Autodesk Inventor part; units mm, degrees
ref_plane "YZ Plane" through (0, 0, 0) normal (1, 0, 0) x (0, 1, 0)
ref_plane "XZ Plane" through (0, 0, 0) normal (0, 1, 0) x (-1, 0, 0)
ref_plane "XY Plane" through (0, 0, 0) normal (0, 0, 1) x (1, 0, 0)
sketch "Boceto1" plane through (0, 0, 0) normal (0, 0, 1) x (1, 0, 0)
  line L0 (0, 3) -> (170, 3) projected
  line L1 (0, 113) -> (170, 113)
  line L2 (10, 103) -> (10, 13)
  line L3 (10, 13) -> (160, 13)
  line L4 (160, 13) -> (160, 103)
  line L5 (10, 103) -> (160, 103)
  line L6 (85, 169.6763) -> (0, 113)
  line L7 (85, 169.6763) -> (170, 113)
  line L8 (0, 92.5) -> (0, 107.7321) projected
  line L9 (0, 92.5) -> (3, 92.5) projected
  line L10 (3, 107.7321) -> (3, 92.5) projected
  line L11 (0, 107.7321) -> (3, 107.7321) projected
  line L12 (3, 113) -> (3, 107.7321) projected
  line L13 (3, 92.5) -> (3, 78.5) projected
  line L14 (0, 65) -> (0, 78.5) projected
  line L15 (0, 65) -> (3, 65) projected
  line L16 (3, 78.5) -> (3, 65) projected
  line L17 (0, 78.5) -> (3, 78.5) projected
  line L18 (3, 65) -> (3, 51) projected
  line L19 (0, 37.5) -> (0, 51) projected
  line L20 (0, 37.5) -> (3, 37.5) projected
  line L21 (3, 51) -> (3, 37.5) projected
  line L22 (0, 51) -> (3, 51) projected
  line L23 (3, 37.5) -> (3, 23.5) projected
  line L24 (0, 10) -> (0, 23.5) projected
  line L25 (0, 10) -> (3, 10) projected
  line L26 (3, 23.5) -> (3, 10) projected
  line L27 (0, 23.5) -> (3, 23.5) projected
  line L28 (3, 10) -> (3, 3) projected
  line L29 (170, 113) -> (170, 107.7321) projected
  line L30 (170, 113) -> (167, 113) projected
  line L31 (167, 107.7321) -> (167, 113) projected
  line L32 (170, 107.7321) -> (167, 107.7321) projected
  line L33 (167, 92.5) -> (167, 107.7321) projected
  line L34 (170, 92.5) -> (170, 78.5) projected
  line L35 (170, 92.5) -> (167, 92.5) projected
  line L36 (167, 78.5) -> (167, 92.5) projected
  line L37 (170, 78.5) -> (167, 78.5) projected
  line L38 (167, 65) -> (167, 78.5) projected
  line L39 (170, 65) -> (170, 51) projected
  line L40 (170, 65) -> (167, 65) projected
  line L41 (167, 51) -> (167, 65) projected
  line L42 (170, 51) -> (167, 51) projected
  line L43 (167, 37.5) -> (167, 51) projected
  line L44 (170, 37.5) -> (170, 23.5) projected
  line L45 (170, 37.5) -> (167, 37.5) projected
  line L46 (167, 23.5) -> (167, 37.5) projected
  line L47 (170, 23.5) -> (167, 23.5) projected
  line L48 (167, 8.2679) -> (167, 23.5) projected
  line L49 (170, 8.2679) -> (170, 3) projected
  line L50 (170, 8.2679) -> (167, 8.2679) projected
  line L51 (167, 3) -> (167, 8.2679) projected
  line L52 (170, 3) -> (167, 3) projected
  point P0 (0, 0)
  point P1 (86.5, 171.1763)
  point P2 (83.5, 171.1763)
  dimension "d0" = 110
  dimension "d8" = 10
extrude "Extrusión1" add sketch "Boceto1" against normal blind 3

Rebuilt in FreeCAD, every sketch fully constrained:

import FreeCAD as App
import Part
import Sketcher

doc = App.newDocument("Part")
body = doc.addObject("PartDesign::Body", "Body")

sketch1 = body.newObject("Sketcher::SketchObject", "Sketch")
sketch1.AttachmentSupport = (doc.getObject("XY_Plane"), [""])
sketch1.MapMode = "FlatFace"
sketch1.addGeometry([
    Part.LineSegment(App.Vector(3, 10, 0), App.Vector(3, 3, 0)),
    Part.LineSegment(App.Vector(3, 3, 0), App.Vector(170, 3, 0)),
    Part.LineSegment(App.Vector(170, 3, 0), App.Vector(170, 8.2679, 0)),
    Part.LineSegment(App.Vector(170, 8.2679, 0), App.Vector(167, 8.2679, 0)),
    Part.LineSegment(App.Vector(167, 8.2679, 0), App.Vector(167, 23.5, 0)),
    Part.LineSegment(App.Vector(167, 23.5, 0), App.Vector(170, 23.5, 0)),
    Part.LineSegment(App.Vector(170, 23.5, 0), App.Vector(170, 37.5, 0)),
    Part.LineSegment(App.Vector(170, 37.5, 0), App.Vector(167, 37.5, 0)),
    Part.LineSegment(App.Vector(167, 37.5, 0), App.Vector(167, 51, 0)),
    Part.LineSegment(App.Vector(167, 51, 0), App.Vector(170, 51, 0)),
    Part.LineSegment(App.Vector(170, 51, 0), App.Vector(170, 65, 0)),
    Part.LineSegment(App.Vector(170, 65, 0), App.Vector(167, 65, 0)),
    Part.LineSegment(App.Vector(167, 65, 0), App.Vector(167, 78.5, 0)),
    Part.LineSegment(App.Vector(167, 78.5, 0), App.Vector(170, 78.5, 0)),
    Part.LineSegment(App.Vector(170, 78.5, 0), App.Vector(170, 92.5, 0)),
    Part.LineSegment(App.Vector(170, 92.5, 0), App.Vector(167, 92.5, 0)),
    Part.LineSegment(App.Vector(167, 92.5, 0), App.Vector(167, 107.7321, 0)),
    Part.LineSegment(App.Vector(167, 107.7321, 0), App.Vector(170, 107.7321, 0)),
    Part.LineSegment(App.Vector(170, 107.7321, 0), App.Vector(170, 113, 0)),
    Part.LineSegment(App.Vector(170, 113, 0), App.Vector(85, 169.6763, 0)),
    Part.LineSegment(App.Vector(85, 169.6763, 0), App.Vector(0, 113, 0)),
    Part.LineSegment(App.Vector(0, 113, 0), App.Vector(3, 113, 0)),
    Part.LineSegment(App.Vector(3, 113, 0), App.Vector(3, 107.7321, 0)),
    Part.LineSegment(App.Vector(3, 107.7321, 0), App.Vector(0, 107.7321, 0)),
    Part.LineSegment(App.Vector(0, 107.7321, 0), App.Vector(0, 92.5, 0)),
    Part.LineSegment(App.Vector(0, 92.5, 0), App.Vector(3, 92.5, 0)),
    Part.LineSegment(App.Vector(3, 92.5, 0), App.Vector(3, 78.5, 0)),
    Part.LineSegment(App.Vector(3, 78.5, 0), App.Vector(0, 78.5, 0)),
    Part.LineSegment(App.Vector(0, 78.5, 0), App.Vector(0, 65, 0)),
    Part.LineSegment(App.Vector(0, 65, 0), App.Vector(3, 65, 0)),
    Part.LineSegment(App.Vector(3, 65, 0), App.Vector(3, 51, 0)),
    Part.LineSegment(App.Vector(3, 51, 0), App.Vector(0, 51, 0)),
    Part.LineSegment(App.Vector(0, 51, 0), App.Vector(0, 37.5, 0)),
    Part.LineSegment(App.Vector(0, 37.5, 0), App.Vector(3, 37.5, 0)),
    Part.LineSegment(App.Vector(3, 37.5, 0), App.Vector(3, 23.5, 0)),
    Part.LineSegment(App.Vector(3, 23.5, 0), App.Vector(0, 23.5, 0)),
    Part.LineSegment(App.Vector(0, 23.5, 0), App.Vector(0, 10, 0)),
    Part.LineSegment(App.Vector(0, 10, 0), App.Vector(3, 10, 0)),
    Part.LineSegment(App.Vector(10, 13, 0), App.Vector(10, 103, 0)),
    Part.LineSegment(App.Vector(10, 103, 0), App.Vector(160, 103, 0)),
    Part.LineSegment(App.Vector(160, 103, 0), App.Vector(160, 13, 0)),
    Part.LineSegment(App.Vector(160, 13, 0), App.Vector(10, 13, 0)),
], False)
sketch1.addConstraint([
    Sketcher.Constraint("Coincident", 0, 2, 1, 1),
    Sketcher.Constraint("Coincident", 1, 2, 2, 1),
    Sketcher.Constraint("Coincident", 2, 2, 3, 1),
    Sketcher.Constraint("Coincident", 3, 2, 4, 1),
    Sketcher.Constraint("Coincident", 4, 2, 5, 1),
    Sketcher.Constraint("Coincident", 5, 2, 6, 1),
    Sketcher.Constraint("Coincident", 6, 2, 7, 1),
    Sketcher.Constraint("Coincident", 7, 2, 8, 1),
    Sketcher.Constraint("Coincident", 8, 2, 9, 1),
    Sketcher.Constraint("Coincident", 9, 2, 10, 1),
    Sketcher.Constraint("Coincident", 10, 2, 11, 1),
    Sketcher.Constraint("Coincident", 11, 2, 12, 1),
    Sketcher.Constraint("Coincident", 12, 2, 13, 1),
    Sketcher.Constraint("Coincident", 13, 2, 14, 1),
    Sketcher.Constraint("Coincident", 14, 2, 15, 1),
    Sketcher.Constraint("Coincident", 15, 2, 16, 1),
    Sketcher.Constraint("Coincident", 16, 2, 17, 1),
    Sketcher.Constraint("Coincident", 17, 2, 18, 1),
    Sketcher.Constraint("Coincident", 18, 2, 19, 1),
    Sketcher.Constraint("Coincident", 19, 2, 20, 1),
    Sketcher.Constraint("Coincident", 20, 2, 21, 1),
    Sketcher.Constraint("Coincident", 21, 2, 22, 1),
    Sketcher.Constraint("Coincident", 22, 2, 23, 1),
    Sketcher.Constraint("Coincident", 23, 2, 24, 1),
    Sketcher.Constraint("Coincident", 24, 2, 25, 1),
    Sketcher.Constraint("Coincident", 25, 2, 26, 1),
    Sketcher.Constraint("Coincident", 26, 2, 27, 1),
    Sketcher.Constraint("Coincident", 27, 2, 28, 1),
    Sketcher.Constraint("Coincident", 28, 2, 29, 1),
    Sketcher.Constraint("Coincident", 29, 2, 30, 1),
    Sketcher.Constraint("Coincident", 30, 2, 31, 1),
    Sketcher.Constraint("Coincident", 31, 2, 32, 1),
    Sketcher.Constraint("Coincident", 32, 2, 33, 1),
    Sketcher.Constraint("Coincident", 33, 2, 34, 1),
    Sketcher.Constraint("Coincident", 34, 2, 35, 1),
    Sketcher.Constraint("Coincident", 35, 2, 36, 1),
    Sketcher.Constraint("Coincident", 36, 2, 37, 1),
    Sketcher.Constraint("Coincident", 37, 2, 0, 1),
    Sketcher.Constraint("Coincident", 38, 2, 39, 1),
    Sketcher.Constraint("Coincident", 39, 2, 40, 1),
    Sketcher.Constraint("Coincident", 40, 2, 41, 1),
    Sketcher.Constraint("Coincident", 41, 2, 38, 1),
    Sketcher.Constraint("Vertical", 0),
    Sketcher.Constraint("Horizontal", 1),
    Sketcher.Constraint("Vertical", 2),
    Sketcher.Constraint("Horizontal", 3),
    Sketcher.Constraint("Vertical", 4),
    Sketcher.Constraint("Horizontal", 5),
    Sketcher.Constraint("Vertical", 6),
    Sketcher.Constraint("Horizontal", 7),
    Sketcher.Constraint("Vertical", 8),
    Sketcher.Constraint("Horizontal", 9),
    Sketcher.Constraint("Vertical", 10),
    Sketcher.Constraint("Horizontal", 11),
    Sketcher.Constraint("Vertical", 12),
    Sketcher.Constraint("Horizontal", 13),
    Sketcher.Constraint("Vertical", 14),
    Sketcher.Constraint("Horizontal", 15),
    Sketcher.Constraint("Vertical", 16),
    Sketcher.Constraint("Horizontal", 17),
    Sketcher.Constraint("Vertical", 18),
    Sketcher.Constraint("Horizontal", 21),
    Sketcher.Constraint("Vertical", 22),
    Sketcher.Constraint("Horizontal", 23),
    Sketcher.Constraint("Vertical", 24),
    Sketcher.Constraint("Horizontal", 25),
    Sketcher.Constraint("Vertical", 26),
    Sketcher.Constraint("Horizontal", 27),
    Sketcher.Constraint("Vertical", 28),
    Sketcher.Constraint("Horizontal", 29),
    Sketcher.Constraint("Vertical", 30),
    Sketcher.Constraint("Horizontal", 31),
    Sketcher.Constraint("Vertical", 32),
    Sketcher.Constraint("Horizontal", 33),
    Sketcher.Constraint("Vertical", 34),
    Sketcher.Constraint("Horizontal", 35),
    Sketcher.Constraint("Vertical", 36),
    Sketcher.Constraint("Horizontal", 37),
    Sketcher.Constraint("Vertical", 38),
    Sketcher.Constraint("Horizontal", 39),
    Sketcher.Constraint("Vertical", 40),
    Sketcher.Constraint("Horizontal", 41),
    Sketcher.Constraint("PointOnObject", 20, 2, -2),
    Sketcher.Constraint("PointOnObject", 23, 2, -2),
    Sketcher.Constraint("PointOnObject", 27, 2, -2),
    Sketcher.Constraint("PointOnObject", 31, 2, -2),
    Sketcher.Constraint("PointOnObject", 35, 2, -2),
    Sketcher.Constraint("Horizontal", 18, 2, 20, 2),
    Sketcher.Constraint("Horizontal", 17, 2, 22, 2),
    Sketcher.Constraint("Horizontal", 15, 2, 24, 2),
    Sketcher.Constraint("Horizontal", 13, 2, 26, 2),
    Sketcher.Constraint("Horizontal", 11, 2, 28, 2),
    Sketcher.Constraint("Horizontal", 9, 2, 30, 2),
    Sketcher.Constraint("Horizontal", 7, 2, 32, 2),
    Sketcher.Constraint("Horizontal", 5, 2, 34, 2),
    Sketcher.Constraint("Vertical", 2, 2, 5, 2),
    Sketcher.Constraint("Vertical", 4, 2, 7, 2),
    Sketcher.Constraint("Vertical", 6, 2, 9, 2),
    Sketcher.Constraint("Vertical", 8, 2, 11, 2),
    Sketcher.Constraint("Vertical", 10, 2, 13, 2),
    Sketcher.Constraint("Vertical", 12, 2, 15, 2),
    Sketcher.Constraint("Vertical", 14, 2, 17, 2),
    Sketcher.Constraint("Vertical", 0, 2, 21, 2),
    Sketcher.Constraint("Vertical", 22, 2, 25, 2),
    Sketcher.Constraint("Vertical", 26, 2, 29, 2),
    Sketcher.Constraint("Vertical", 30, 2, 33, 2),
    Sketcher.Constraint("Equal", 17, 21),
    Sketcher.Constraint("Equal", 6, 10),
    Sketcher.Constraint("Equal", 8, 12),
    Sketcher.Constraint("Equal", 10, 14),
    Sketcher.Constraint("Equal", 4, 16),
    Sketcher.Constraint("Equal", 2, 18),
    Sketcher.Constraint("Equal", 32, 36),
    Sketcher.Constraint("Equal", 19, 20),
    Sketcher.Constraint("DistanceY", -1, 1, 36, 2, 10.0),
    Sketcher.Constraint("DistanceX", -1, 1, 38, 2, 10.0),
    Sketcher.Constraint("DistanceY", 0, 2, 20, 2, 110.0),
    Sketcher.Constraint("DistanceY", 38, 2, 21, 2, 10.0),
    Sketcher.Constraint("DistanceX", 39, 2, 17, 2, 10.0),
    Sketcher.Constraint("DistanceY", 1, 2, 40, 2, 10.0),
    Sketcher.Constraint("DistanceX", 1, 1, 1, 2, 167.0),
    Sketcher.Constraint("DistanceX", 3, 2, 3, 1, 3.0),
    Sketcher.Constraint("DistanceY", 0, 2, 0, 1, 7.0),
    Sketcher.Constraint("DistanceY", 6, 1, 6, 2, 14.0),
    Sketcher.Constraint("DistanceY", 2, 1, 2, 2, 5.268),
    Sketcher.Constraint("Distance", 19, 102.1626),
])
pad1 = body.newObject("PartDesign::Pad", "Pad")
pad1.Profile = sketch1
pad1.Length = 3
pad1.Reversed = True

doc.recompute()
